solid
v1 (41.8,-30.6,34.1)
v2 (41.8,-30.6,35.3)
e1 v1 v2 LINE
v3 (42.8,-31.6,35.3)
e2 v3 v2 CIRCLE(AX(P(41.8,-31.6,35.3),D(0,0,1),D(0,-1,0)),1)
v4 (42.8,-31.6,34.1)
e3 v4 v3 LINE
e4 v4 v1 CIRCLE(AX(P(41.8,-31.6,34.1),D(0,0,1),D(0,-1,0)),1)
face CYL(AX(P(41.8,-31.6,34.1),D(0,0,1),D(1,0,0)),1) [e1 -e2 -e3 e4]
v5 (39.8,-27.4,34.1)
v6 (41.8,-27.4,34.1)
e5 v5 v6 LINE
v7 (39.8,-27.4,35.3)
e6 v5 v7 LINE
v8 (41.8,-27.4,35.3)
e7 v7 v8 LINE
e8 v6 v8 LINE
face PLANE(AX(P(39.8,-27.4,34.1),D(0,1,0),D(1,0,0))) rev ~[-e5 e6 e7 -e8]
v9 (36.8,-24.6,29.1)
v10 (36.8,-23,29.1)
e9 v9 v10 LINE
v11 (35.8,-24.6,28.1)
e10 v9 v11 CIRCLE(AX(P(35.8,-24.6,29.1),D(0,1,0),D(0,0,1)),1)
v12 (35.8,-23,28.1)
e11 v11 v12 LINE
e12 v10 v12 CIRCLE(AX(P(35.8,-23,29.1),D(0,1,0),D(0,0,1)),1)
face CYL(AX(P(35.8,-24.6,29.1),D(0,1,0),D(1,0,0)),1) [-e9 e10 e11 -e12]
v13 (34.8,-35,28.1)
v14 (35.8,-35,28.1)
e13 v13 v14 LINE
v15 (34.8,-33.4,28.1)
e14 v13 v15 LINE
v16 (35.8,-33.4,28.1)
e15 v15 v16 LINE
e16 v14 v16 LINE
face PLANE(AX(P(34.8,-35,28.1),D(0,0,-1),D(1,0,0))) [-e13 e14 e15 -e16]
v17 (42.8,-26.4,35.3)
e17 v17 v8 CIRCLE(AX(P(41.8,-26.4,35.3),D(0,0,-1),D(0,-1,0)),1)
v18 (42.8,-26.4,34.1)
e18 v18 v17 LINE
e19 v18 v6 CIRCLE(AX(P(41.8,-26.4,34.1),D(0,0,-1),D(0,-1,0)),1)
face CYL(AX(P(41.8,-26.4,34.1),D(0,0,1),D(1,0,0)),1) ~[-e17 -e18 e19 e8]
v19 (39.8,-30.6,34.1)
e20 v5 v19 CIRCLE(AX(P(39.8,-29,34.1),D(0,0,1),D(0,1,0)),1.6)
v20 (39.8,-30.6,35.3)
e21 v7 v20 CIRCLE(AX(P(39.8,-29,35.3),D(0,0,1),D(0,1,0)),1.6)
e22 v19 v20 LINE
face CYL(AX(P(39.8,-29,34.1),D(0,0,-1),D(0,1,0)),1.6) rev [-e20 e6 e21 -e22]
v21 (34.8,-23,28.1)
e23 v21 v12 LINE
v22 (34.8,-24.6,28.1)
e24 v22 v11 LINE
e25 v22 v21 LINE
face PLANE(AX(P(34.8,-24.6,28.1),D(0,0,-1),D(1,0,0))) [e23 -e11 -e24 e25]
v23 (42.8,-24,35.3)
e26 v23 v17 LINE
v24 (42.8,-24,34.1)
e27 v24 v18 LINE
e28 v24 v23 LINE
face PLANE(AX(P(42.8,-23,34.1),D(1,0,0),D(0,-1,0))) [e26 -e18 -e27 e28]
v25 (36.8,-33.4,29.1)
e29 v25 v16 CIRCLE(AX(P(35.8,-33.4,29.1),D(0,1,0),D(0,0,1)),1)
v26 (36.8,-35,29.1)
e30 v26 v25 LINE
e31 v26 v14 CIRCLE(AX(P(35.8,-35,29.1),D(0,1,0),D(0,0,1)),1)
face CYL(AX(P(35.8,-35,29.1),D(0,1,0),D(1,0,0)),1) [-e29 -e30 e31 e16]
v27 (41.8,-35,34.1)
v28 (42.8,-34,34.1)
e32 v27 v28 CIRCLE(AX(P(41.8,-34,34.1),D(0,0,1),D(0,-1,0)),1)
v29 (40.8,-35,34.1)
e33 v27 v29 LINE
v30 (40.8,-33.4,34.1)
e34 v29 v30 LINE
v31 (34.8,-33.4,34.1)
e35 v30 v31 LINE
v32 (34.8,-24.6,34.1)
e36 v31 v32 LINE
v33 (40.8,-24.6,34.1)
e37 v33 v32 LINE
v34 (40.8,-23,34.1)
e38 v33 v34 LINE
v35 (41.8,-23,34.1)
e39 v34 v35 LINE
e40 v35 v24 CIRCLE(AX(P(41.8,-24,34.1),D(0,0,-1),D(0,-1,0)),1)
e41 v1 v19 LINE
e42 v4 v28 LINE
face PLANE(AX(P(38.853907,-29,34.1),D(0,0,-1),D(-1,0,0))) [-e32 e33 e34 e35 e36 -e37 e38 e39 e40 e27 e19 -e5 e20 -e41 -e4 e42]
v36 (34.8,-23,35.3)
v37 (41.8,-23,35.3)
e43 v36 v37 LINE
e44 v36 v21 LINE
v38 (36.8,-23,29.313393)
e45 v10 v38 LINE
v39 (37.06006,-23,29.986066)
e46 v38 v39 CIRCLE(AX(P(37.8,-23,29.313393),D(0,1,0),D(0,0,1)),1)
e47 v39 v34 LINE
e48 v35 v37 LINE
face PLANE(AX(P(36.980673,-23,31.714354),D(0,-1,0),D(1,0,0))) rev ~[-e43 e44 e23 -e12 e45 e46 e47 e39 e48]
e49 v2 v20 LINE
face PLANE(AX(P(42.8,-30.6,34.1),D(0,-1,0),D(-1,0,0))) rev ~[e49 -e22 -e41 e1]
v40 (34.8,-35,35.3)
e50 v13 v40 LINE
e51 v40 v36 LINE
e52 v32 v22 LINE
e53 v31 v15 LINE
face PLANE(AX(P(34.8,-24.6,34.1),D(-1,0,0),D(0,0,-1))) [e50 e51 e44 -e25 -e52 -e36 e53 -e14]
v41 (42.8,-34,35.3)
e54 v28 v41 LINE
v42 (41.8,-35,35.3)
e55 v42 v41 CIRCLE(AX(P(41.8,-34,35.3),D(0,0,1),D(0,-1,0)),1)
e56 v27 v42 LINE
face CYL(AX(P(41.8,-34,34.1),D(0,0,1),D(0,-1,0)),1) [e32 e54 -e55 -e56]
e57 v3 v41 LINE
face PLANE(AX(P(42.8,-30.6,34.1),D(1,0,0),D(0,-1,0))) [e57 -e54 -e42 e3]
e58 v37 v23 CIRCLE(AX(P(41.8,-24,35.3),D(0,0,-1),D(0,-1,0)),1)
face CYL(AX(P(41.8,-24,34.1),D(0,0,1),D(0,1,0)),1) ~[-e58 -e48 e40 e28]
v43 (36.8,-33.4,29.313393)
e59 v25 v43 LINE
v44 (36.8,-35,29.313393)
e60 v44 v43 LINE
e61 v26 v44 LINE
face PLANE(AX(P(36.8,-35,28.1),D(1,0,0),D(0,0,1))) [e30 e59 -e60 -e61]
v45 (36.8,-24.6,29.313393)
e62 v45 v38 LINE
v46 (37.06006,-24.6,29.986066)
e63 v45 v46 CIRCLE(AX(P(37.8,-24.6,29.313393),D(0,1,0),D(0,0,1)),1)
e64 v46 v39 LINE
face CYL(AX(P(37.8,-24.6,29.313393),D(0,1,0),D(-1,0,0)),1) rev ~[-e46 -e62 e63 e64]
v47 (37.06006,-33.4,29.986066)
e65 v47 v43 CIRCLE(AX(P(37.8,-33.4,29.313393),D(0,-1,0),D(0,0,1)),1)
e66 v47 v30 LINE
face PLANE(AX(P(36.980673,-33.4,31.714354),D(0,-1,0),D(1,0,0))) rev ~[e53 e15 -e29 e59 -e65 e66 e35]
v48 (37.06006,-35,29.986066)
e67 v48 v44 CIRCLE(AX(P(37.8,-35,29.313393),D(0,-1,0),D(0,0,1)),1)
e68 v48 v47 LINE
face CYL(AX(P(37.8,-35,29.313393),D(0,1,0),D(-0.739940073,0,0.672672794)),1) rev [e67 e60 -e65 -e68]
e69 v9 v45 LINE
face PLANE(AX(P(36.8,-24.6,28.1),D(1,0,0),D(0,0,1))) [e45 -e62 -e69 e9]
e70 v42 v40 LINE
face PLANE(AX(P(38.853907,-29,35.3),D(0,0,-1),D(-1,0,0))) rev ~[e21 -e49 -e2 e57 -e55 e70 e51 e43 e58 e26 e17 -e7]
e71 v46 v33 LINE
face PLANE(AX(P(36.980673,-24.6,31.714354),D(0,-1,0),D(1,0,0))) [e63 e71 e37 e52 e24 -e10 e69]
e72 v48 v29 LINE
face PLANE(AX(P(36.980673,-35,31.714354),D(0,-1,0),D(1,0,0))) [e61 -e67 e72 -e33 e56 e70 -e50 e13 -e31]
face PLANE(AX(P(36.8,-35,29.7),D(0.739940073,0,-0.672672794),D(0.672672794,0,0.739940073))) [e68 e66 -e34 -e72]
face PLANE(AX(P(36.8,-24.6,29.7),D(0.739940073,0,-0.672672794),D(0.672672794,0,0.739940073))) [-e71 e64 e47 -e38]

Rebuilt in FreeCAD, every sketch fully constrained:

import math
import FreeCAD as App
import Part
import Sketcher

V = App.Vector
Q = App.Units.Quantity


def edges_at(feature, points):
    """Names of the edges that pass closest to the given points."""
    edges = feature.Shape.Edges
    near = lambda p: min(range(len(edges)), key=lambda i: edges[i].distToShape(Part.Vertex(*p))[0])
    return sorted({f"Edge{near(p) + 1}" for p in points})


def add_polygon(sketch, points):
    """Adds a closed chain of lines whose ends are joined by coincident constraints."""
    first, n = sketch.GeometryCount, len(points)
    for a, b in zip(points, points[1:] + points[:1]):
        sketch.addGeometry(Part.LineSegment(App.Vector(*a, 0), App.Vector(*b, 0)), False)
    for i in range(n):
        sketch.addConstraint(Sketcher.Constraint("Coincident", first + i, 2, first + (i + 1) % n, 1))

doc = App.newDocument("Part")
params = doc.addObject("Spreadsheet::Sheet", "Params")
for row, (alias, value) in enumerate([
    ("sketch1_radius", "1.6 mm"),
    ("sketch1_width", "8 mm"),
    ("sketch1_width2", "3 mm"),
    ("sketch1_height", "12 mm"),
    ("pad1_length", "1.2 mm"),
    ("sketch2_width", "2 mm"),
    ("sketch2_width2", "6 mm"),
    ("sketch2_height", "1.6 mm"),
    ("pad2_length", "1.6 mm"),
    ("linearpattern_pitch", "10.4 mm"),
    ("fillet_radius", "1 mm"),
    ("fillet2_radius", "1 mm"),
    ("fillet3_radius", "1 mm"),
], start=1):
    params.set(f"A{row}", alias)
    params.set(f"B{row}", "=" + value)
    params.setAlias(f"B{row}", alias)

body = doc.addObject("PartDesign::Body", "Body")

sketch1 = body.newObject("Sketcher::SketchObject", "Sketch")
sketch1.AttachmentSupport = (doc.getObject("XY_Plane"), [""])
sketch1.MapMode = "FlatFace"
sketch1.addGeometry(Part.LineSegment(V(4, 6, 0), V(-4, 6, 0)), False)
sketch1.addGeometry(Part.LineSegment(V(-4, 6, 0), V(-4, -6, 0)), False)
sketch1.addGeometry(Part.LineSegment(V(-4, -6, 0), V(4, -6, 0)), False)
sketch1.addGeometry(Part.LineSegment(V(4, -6, 0), V(4, -1.6, 0)), False)
sketch1.addGeometry(Part.LineSegment(V(4, -1.6, 0), V(1, -1.6, 0)), False)
sketch1.addGeometry(Part.ArcOfCircle(Part.Circle(V(1, 0, 0), V(0, 0, 1), 1.6), math.radians(90), math.radians(270)), False)
sketch1.addGeometry(Part.LineSegment(V(1, 1.6, 0), V(4, 1.6, 0)), False)
sketch1.addGeometry(Part.LineSegment(V(4, 1.6, 0), V(4, 6, 0)), False)
sketch1.addConstraint(Sketcher.Constraint("Coincident", 0, 2, 1, 1))
sketch1.addConstraint(Sketcher.Constraint("Coincident", 1, 2, 2, 1))
sketch1.addConstraint(Sketcher.Constraint("Coincident", 2, 2, 3, 1))
sketch1.addConstraint(Sketcher.Constraint("Coincident", 3, 2, 4, 1))
sketch1.addConstraint(Sketcher.Constraint("Tangent", 4, 2, 5, 2))
sketch1.addConstraint(Sketcher.Constraint("Tangent", 5, 1, 6, 1))
sketch1.addConstraint(Sketcher.Constraint("Coincident", 6, 2, 7, 1))
sketch1.addConstraint(Sketcher.Constraint("Coincident", 7, 2, 0, 1))
sketch1.addConstraint(Sketcher.Constraint("Horizontal", 0))
sketch1.addConstraint(Sketcher.Constraint("Vertical", 1))
sketch1.addConstraint(Sketcher.Constraint("Horizontal", 2))
sketch1.addConstraint(Sketcher.Constraint("Vertical", 3))
sketch1.addConstraint(Sketcher.Constraint("Horizontal", 4))
sketch1.addConstraint(Sketcher.Constraint("Horizontal", 6))
sketch1.addConstraint(Sketcher.Constraint("Vertical", 7))
sketch1.addConstraint(Sketcher.Constraint("Symmetric", 0, 2, 2, 2, -1, 1))
sketch1.addConstraint(Sketcher.Constraint("Symmetric", 3, 2, 6, 2, -1))
sketch1.addConstraint(Sketcher.Constraint("Radius", 5, Q("1.6 mm")))
sketch1.addConstraint(Sketcher.Constraint("DistanceX", 0, 2, 0, 1, Q("8 mm")))
sketch1.addConstraint(Sketcher.Constraint("DistanceX", 4, 2, 4, 1, Q("3 mm")))
sketch1.addConstraint(Sketcher.Constraint("DistanceY", 1, 2, 1, 1, Q("12 mm")))
sketch1.setExpression("Constraints[17]", "Params.sketch1_radius")
sketch1.setExpression("Constraints[18]", "Params.sketch1_width")
sketch1.setExpression("Constraints[19]", "Params.sketch1_width2")
sketch1.setExpression("Constraints[20]", "Params.sketch1_height")
pad1 = body.newObject("PartDesign::Pad", "Pad")
pad1.Profile = sketch1
pad1.setExpression("Length", "Params.pad1_length")

sketch2 = body.newObject("Sketcher::SketchObject", "Sketch001")
sketch2.AttachmentSupport = (doc.getObject("XZ_Plane"), [""])
sketch2.MapMode = "FlatFace"
sketch2.AttachmentOffset = App.Placement(V(0, 0, 6), App.Rotation())
add_polygon(sketch2, [(-4, 0), (-4, -6), (-2, -6), (-2, -4.4), (2, 0)])
sketch2.addConstraint(Sketcher.Constraint("Vertical", 0))
sketch2.addConstraint(Sketcher.Constraint("Horizontal", 1))
sketch2.addConstraint(Sketcher.Constraint("Vertical", 2))
sketch2.addConstraint(Sketcher.Constraint("Horizontal", 4))
sketch2.addConstraint(Sketcher.Constraint("PointOnObject", 3, 2, -1))
sketch2.addConstraint(Sketcher.Constraint("Equal", 4, 0))
sketch2.addConstraint(Sketcher.Constraint("DistanceX", 1, 1, 1, 2, Q("2 mm")))
sketch2.addConstraint(Sketcher.Constraint("DistanceX", 4, 2, 4, 1, Q("6 mm")))
sketch2.addConstraint(Sketcher.Constraint("DistanceY", 2, 1, 2, 2, Q("1.6 mm")))
sketch2.addConstraint(Sketcher.Constraint("DistanceX", 0, 2, -1, 1, Q("4 mm")))
sketch2.setExpression("Constraints[11]", "Params.sketch2_width")
sketch2.setExpression("Constraints[12]", "Params.sketch2_width2")
sketch2.setExpression("Constraints[13]", "Params.sketch2_height")
pad2 = body.newObject("PartDesign::Pad", "Pad001")
pad2.Profile = sketch2
pad2.setExpression("Length", "Params.pad2_length")
pad2.Reversed = True
doc.recompute()

linearpattern = body.newObject("PartDesign::LinearPattern", "LinearPattern")
linearpattern.Originals = [pad2]
linearpattern.Direction = (doc.getObject("Y_Axis"), [""])
linearpattern.Mode = "offset"
linearpattern.setExpression("Offset", "Params.linearpattern_pitch")
linearpattern.Occurrences = 2
body.Tip = linearpattern
doc.recompute()

fillet = body.newObject("PartDesign::Fillet", "Fillet")
fillet.Base = (linearpattern, edges_at(linearpattern, [(-2, -5.2, -6), (-2, 5.2, -6)]))
fillet.setExpression("Radius", "Params.fillet_radius")
doc.recompute()

fillet2 = body.newObject("PartDesign::Fillet", "Fillet001")
fillet2.Base = (fillet, edges_at(fillet, [(-2, -5.2, -4.4), (-2, 5.2, -4.4)]))
fillet2.setExpression("Radius", "Params.fillet2_radius")
doc.recompute()

fillet3 = body.newObject("PartDesign::Fillet", "Fillet002")
fillet3.Base = (fillet2, edges_at(fillet2, [
    (4, -6, 0.6),
    (4, -1.6, 0.6),
    (4, 1.6, 0.6),
    (4, 6, 0.6),
]))
fillet3.setExpression("Radius", "Params.fillet3_radius")
body2 = doc.addObject("PartDesign::Body", "Body001")
doc.recompute()

body.Placement = App.Placement(V(38.8, -29, 34.1), App.Rotation(V(0, 0, 1), 0))
boolean = body2.newObject("PartDesign::Boolean", "Boolean")
boolean.Type = "Fuse"
boolean.addObjects([body])

doc.recompute()
